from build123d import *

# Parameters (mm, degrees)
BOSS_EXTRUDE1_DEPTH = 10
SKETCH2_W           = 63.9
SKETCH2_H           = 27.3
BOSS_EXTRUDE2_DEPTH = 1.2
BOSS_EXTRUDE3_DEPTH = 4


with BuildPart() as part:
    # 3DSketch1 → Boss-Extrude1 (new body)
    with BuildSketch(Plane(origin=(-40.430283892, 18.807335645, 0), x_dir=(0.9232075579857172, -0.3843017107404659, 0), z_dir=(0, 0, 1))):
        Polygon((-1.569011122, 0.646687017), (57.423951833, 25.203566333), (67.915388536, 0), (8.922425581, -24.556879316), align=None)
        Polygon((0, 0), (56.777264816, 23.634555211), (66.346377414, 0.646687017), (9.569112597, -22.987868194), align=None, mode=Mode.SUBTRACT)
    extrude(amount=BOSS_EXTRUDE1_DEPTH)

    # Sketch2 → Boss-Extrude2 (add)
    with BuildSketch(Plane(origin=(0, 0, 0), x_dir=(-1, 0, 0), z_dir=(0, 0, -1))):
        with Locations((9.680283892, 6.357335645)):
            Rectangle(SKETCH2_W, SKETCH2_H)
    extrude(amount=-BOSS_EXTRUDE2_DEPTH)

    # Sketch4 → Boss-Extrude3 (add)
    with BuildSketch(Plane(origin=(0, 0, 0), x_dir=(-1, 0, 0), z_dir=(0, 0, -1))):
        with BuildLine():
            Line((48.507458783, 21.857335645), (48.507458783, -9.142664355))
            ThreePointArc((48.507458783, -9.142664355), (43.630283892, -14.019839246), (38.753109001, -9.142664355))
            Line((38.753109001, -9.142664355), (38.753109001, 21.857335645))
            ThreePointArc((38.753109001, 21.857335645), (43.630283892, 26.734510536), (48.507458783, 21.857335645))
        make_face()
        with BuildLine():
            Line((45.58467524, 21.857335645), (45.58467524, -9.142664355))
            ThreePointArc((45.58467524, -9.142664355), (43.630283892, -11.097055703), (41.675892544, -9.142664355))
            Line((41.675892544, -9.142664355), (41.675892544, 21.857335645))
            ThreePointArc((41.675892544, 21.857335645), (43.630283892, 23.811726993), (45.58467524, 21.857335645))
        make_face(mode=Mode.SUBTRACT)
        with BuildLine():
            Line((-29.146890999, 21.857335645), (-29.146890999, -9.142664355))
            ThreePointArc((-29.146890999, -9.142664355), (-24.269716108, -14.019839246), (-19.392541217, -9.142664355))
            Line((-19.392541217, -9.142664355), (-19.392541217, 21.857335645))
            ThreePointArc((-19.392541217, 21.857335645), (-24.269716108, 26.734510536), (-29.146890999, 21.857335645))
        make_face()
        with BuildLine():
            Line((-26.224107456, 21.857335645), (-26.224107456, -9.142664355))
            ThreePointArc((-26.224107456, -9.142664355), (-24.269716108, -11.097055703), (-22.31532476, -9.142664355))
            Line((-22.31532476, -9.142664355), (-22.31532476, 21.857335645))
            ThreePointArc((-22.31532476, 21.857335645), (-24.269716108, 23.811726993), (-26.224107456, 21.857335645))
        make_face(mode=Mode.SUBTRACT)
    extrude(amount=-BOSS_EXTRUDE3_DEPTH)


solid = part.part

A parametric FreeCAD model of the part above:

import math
import FreeCAD as App
import Part
import Sketcher

V = App.Vector
Q = App.Units.Quantity


def add_polygon(sketch, points):
    """Adds a closed chain of lines whose ends are joined by coincident constraints."""
    first, n = sketch.GeometryCount, len(points)
    for a, b in zip(points, points[1:] + points[:1]):
        sketch.addGeometry(Part.LineSegment(App.Vector(*a, 0), App.Vector(*b, 0)), False)
    for i in range(n):
        sketch.addConstraint(Sketcher.Constraint("Coincident", first + i, 2, first + (i + 1) % n, 1))

doc = App.newDocument("Part")
body = doc.addObject("PartDesign::Body", "Body")

# Sketch on XY plane
sketch1 = body.newObject("Sketcher::SketchObject", "Sketch")
sketch1.AttachmentSupport = (doc.getObject("XY_Plane"), [""])
sketch1.MapMode = "FlatFace"
add_polygon(sketch1, [(22, 20), (-42, 20), (-42, -7), (22, -7)])  # lines 0-3
add_polygon(sketch1, [(-40, 19), (21, 19), (21, -6), (-40, -6)])  # lines 4-7
sketch1.addConstraint([
    Sketcher.Constraint("Horizontal", 0),
    Sketcher.Constraint("Vertical", 1),
    Sketcher.Constraint("Horizontal", 2),
    Sketcher.Constraint("Vertical", 3),
    Sketcher.Constraint("Horizontal", 4),
    Sketcher.Constraint("Vertical", 5),
    Sketcher.Constraint("Horizontal", 6),
    Sketcher.Constraint("Vertical", 7),
    Sketcher.Constraint("DistanceX", 0, 2, 0, 1, Q("63.9 mm")),
    Sketcher.Constraint("DistanceX", 4, 1, 4, 2, Q("61.5 mm")),
    Sketcher.Constraint("DistanceY", 1, 2, 1, 1, Q("27.3 mm")),
    Sketcher.Constraint("DistanceY", 5, 2, 5, 1, Q("24.9 mm")),
    Sketcher.Constraint("DistanceX", 4, 2, 3, 2, Q("1.2 mm")),
    Sketcher.Constraint("DistanceY", 4, 2, 3, 2, Q("1.2 mm")),
    Sketcher.Constraint("DistanceX", 0, 2, -1, 1, Q("41.630284 mm")),
    Sketcher.Constraint("DistanceY", -1, 1, 0, 2, Q("20.007336 mm")),
])
pad1 = body.newObject("PartDesign::Pad", "Pad")
pad1.Profile = sketch1
pad1.Length = 10

# Sketch on XY plane
sketch2 = body.newObject("Sketcher::SketchObject", "Sketch001")
sketch2.AttachmentSupport = (doc.getObject("XY_Plane"), [""])
sketch2.MapMode = "FlatFace"
add_polygon(sketch2, [(22, 20), (22, -7), (-42, -7), (-42, 20)])  # lines 0-3
sketch2.addConstraint([
    Sketcher.Constraint("Vertical", 0),
    Sketcher.Constraint("Horizontal", 1),
    Sketcher.Constraint("Vertical", 2),
    Sketcher.Constraint("Horizontal", 3),
    Sketcher.Constraint("DistanceX", 1, 2, 1, 1, Q("63.9 mm")),
    Sketcher.Constraint("DistanceY", 0, 2, 0, 1, Q("27.3 mm")),
    Sketcher.Constraint("DistanceX", -1, 1, 0, 2, Q("22.269716 mm")),
    Sketcher.Constraint("DistanceY", 0, 2, -1, 1, Q("7.292664 mm")),
])
pad2 = body.newObject("PartDesign::Pad", "Pad001")
pad2.Profile = sketch2
pad2.Length = 1.2

# Sketch on XY plane
sketch3 = body.newObject("Sketcher::SketchObject", "Sketch002")
sketch3.AttachmentSupport = (doc.getObject("XY_Plane"), [""])
sketch3.MapMode = "FlatFace"
sketch3.addGeometry([
    Part.LineSegment(V(-48.5, -9.1, 0), V(-48.5, 21.9, 0)),  # 0
    Part.ArcOfCircle(Part.Circle(V(-43.6, 21.9, 0), V(0, 0, 1), 4.9), math.radians(0), math.radians(180)),  # 1
    Part.LineSegment(V(-38.8, 21.9, 0), V(-38.8, -9.1, 0)),  # 2
    Part.ArcOfCircle(Part.Circle(V(-43.6, -9.1, 0), V(0, 0, 1), 4.9), math.radians(180), math.radians(360)),  # 3
    Part.LineSegment(V(-45.6, 21.9, 0), V(-45.6, -9.1, 0)),  # 4
    Part.ArcOfCircle(Part.Circle(V(-43.6, -9.1, 0), V(0, 0, 1), 2), math.radians(180), math.radians(360)),  # 5
    Part.LineSegment(V(-41.7, -9.1, 0), V(-41.7, 21.9, 0)),  # 6
    Part.ArcOfCircle(Part.Circle(V(-43.6, 21.9, 0), V(0, 0, 1), 2), math.radians(0), math.radians(180)),  # 7
    Part.LineSegment(V(29.1, 21.9, 0), V(29.1, -9.1, 0)),  # 8
    Part.ArcOfCircle(Part.Circle(V(24.3, -9.1, 0), V(0, 0, 1), 4.9), math.radians(180), math.radians(360)),  # 9
    Part.LineSegment(V(19.4, -9.1, 0), V(19.4, 21.9, 0)),  # 10
    Part.ArcOfCircle(Part.Circle(V(24.3, 21.9, 0), V(0, 0, 1), 4.9), math.radians(0), math.radians(180)),  # 11
    Part.LineSegment(V(26.2, -9.1, 0), V(26.2, 21.9, 0)),  # 12
    Part.ArcOfCircle(Part.Circle(V(24.3, 21.9, 0), V(0, 0, 1), 2), math.radians(0), math.radians(180)),  # 13
    Part.LineSegment(V(22.3, 21.9, 0), V(22.3, -9.1, 0)),  # 14
    Part.ArcOfCircle(Part.Circle(V(24.3, -9.1, 0), V(0, 0, 1), 2), math.radians(180), math.radians(360)),  # 15
], False)
sketch3.addConstraint([
    Sketcher.Constraint("Tangent", 0, 2, 1, 2),
    Sketcher.Constraint("Tangent", 1, 1, 2, 1),
    Sketcher.Constraint("Tangent", 2, 2, 3, 2),
    Sketcher.Constraint("Tangent", 3, 1, 0, 1),
    Sketcher.Constraint("Tangent", 4, 2, 5, 1),
    Sketcher.Constraint("Tangent", 5, 2, 6, 1),
    Sketcher.Constraint("Tangent", 6, 2, 7, 1),
    Sketcher.Constraint("Tangent", 7, 2, 4, 1),
    Sketcher.Constraint("Tangent", 8, 2, 9, 2),
    Sketcher.Constraint("Tangent", 9, 1, 10, 1),
    Sketcher.Constraint("Tangent", 10, 2, 11, 2),
    Sketcher.Constraint("Tangent", 11, 1, 8, 1),
    Sketcher.Constraint("Tangent", 12, 2, 13, 1),
    Sketcher.Constraint("Tangent", 13, 2, 14, 1),
    Sketcher.Constraint("Tangent", 14, 2, 15, 1),
    Sketcher.Constraint("Tangent", 15, 2, 12, 1),
    Sketcher.Constraint("Vertical", 0),
    Sketcher.Constraint("Vertical", 2),
    Sketcher.Constraint("Vertical", 4),
    Sketcher.Constraint("Vertical", 6),
    Sketcher.Constraint("Vertical", 8),
    Sketcher.Constraint("Vertical", 10),
    Sketcher.Constraint("Vertical", 12),
    Sketcher.Constraint("Vertical", 14),
    Sketcher.Constraint("Coincident", 5, 3, 3, 3),
    Sketcher.Constraint("Coincident", 13, 3, 11, 3),
    Sketcher.Constraint("Equal", 3, 9),
    Sketcher.Constraint("Equal", 7, 13),
    Sketcher.Constraint("Horizontal", 5, 3, 9, 3),
    Sketcher.Constraint("Horizontal", 7, 3, 11, 3),
    Sketcher.Constraint("Horizontal", 5, 3, 15, 3),
    Sketcher.Constraint("Horizontal", 13, 3, 0, 2),
    Sketcher.Constraint("DistanceY", 0, 1, 0, 2, Q("31 mm")),
    Sketcher.Constraint("DistanceX", 3, 3, 9, 3, Q("67.9 mm")),
    Sketcher.Constraint("Radius", 5, Q("1.954391 mm")),
    Sketcher.Constraint("Radius", 1, Q("4.877175 mm")),
    Sketcher.Constraint("DistanceX", 0, 2, -1, 1, Q("48.507459 mm")),
    Sketcher.Constraint("DistanceY", -1, 1, 1, 3, Q("21.857336 mm")),
])
pad3 = body.newObject("PartDesign::Pad", "Pad002")
pad3.Profile = sketch3
pad3.Length = 4

doc.recompute()
